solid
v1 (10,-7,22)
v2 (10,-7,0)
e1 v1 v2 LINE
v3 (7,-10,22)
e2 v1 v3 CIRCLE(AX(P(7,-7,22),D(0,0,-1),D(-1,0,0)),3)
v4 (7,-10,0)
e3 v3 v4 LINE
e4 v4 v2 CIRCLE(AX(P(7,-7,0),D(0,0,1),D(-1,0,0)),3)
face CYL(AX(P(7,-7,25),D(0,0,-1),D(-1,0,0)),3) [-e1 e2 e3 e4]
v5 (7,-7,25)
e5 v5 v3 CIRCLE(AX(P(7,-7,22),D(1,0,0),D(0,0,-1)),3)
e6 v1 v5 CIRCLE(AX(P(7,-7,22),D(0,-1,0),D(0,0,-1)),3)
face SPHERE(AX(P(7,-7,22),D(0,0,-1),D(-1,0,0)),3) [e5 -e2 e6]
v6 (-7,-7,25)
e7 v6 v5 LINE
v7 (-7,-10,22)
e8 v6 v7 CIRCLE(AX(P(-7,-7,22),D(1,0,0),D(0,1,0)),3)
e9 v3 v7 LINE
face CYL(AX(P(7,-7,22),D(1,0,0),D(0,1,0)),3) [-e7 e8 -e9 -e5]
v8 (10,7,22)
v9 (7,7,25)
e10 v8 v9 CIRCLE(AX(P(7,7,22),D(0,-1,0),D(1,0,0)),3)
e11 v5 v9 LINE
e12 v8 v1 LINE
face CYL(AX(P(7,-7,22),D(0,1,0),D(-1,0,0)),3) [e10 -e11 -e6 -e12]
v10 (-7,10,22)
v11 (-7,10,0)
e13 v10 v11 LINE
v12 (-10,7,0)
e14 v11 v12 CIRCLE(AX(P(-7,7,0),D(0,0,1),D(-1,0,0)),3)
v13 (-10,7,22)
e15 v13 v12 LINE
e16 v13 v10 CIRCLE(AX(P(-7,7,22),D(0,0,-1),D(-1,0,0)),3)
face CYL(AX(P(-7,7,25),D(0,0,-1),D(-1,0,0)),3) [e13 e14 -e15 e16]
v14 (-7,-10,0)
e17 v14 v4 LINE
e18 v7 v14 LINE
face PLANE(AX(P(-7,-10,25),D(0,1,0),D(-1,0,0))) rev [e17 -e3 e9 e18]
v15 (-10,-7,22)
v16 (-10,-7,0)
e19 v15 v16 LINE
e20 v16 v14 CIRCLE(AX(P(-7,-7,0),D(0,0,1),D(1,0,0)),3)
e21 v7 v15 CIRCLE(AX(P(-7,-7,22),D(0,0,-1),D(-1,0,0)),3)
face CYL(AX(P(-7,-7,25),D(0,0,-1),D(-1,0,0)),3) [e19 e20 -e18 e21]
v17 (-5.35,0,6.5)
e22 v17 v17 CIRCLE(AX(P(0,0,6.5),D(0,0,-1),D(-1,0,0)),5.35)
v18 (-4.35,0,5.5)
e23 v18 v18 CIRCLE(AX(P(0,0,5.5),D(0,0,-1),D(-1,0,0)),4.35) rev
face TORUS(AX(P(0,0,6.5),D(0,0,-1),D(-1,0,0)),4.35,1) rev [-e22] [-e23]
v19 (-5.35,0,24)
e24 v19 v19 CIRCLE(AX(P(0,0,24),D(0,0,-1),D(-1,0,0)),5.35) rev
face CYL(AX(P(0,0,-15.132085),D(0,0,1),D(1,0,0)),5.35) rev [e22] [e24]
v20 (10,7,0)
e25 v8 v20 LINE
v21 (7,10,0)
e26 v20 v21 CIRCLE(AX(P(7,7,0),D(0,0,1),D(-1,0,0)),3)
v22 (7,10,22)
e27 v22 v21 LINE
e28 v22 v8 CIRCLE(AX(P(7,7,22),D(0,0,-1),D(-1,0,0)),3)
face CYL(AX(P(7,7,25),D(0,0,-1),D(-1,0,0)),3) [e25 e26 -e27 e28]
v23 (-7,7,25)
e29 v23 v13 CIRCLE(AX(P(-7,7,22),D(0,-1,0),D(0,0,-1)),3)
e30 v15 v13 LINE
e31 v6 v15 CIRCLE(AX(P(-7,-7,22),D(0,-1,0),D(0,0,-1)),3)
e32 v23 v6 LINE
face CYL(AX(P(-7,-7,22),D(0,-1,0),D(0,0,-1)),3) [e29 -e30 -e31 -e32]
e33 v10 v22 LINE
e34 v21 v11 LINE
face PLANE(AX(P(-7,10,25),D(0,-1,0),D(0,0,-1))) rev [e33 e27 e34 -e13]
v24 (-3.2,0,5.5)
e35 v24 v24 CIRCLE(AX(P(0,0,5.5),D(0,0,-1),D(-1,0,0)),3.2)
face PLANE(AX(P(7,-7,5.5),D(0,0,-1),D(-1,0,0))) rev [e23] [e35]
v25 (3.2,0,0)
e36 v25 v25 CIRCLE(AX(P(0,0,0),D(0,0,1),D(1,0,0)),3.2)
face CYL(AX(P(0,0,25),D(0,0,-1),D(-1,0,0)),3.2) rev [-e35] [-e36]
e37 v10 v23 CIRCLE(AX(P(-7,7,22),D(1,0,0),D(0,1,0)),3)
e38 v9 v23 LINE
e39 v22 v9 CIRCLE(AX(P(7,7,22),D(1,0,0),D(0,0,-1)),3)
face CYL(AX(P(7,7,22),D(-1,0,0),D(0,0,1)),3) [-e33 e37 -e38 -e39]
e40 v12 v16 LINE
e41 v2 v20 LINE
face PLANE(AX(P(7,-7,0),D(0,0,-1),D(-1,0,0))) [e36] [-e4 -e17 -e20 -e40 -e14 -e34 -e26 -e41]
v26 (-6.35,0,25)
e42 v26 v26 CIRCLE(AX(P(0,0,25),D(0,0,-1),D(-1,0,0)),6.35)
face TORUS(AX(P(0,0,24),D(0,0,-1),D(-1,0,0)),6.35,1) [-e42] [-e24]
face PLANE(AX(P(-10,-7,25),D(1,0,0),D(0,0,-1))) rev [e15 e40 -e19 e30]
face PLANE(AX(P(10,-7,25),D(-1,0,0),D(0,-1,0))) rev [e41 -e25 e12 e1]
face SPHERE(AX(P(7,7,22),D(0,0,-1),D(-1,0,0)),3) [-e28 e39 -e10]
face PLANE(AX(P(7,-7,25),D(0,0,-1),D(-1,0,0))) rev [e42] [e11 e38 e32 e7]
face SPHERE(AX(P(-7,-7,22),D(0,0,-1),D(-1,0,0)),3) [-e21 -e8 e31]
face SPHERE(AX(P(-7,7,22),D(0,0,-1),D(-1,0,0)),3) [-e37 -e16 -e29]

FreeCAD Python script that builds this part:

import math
import FreeCAD as App
import Part
import Sketcher

V = App.Vector


def edges_at(feature, points):
    """Names of the edges that pass closest to the given points."""
    edges = feature.Shape.Edges
    near = lambda p: min(range(len(edges)), key=lambda i: edges[i].distToShape(Part.Vertex(*p))[0])
    return sorted({f"Edge{near(p) + 1}" for p in points})

doc = App.newDocument("Part")
body = doc.addObject("PartDesign::Body", "Body")

sketch1 = body.newObject("Sketcher::SketchObject", "Sketch")
sketch1.AttachmentSupport = (doc.getObject("XY_Plane"), [""])
sketch1.MapMode = "FlatFace"
sketch1.addGeometry([
    Part.LineSegment(V(-7, -10, 0), V(7, -10, 0)),
    Part.ArcOfCircle(Part.Circle(V(7, -7, 0), V(0, 0, 1), 3), math.radians(-90), math.radians(0)),
    Part.LineSegment(V(10, -7, 0), V(10, 7, 0)),
    Part.ArcOfCircle(Part.Circle(V(7, 7, 0), V(0, 0, 1), 3), math.radians(0), math.radians(90)),
    Part.LineSegment(V(7, 10, 0), V(-7, 10, 0)),
    Part.ArcOfCircle(Part.Circle(V(-7, 7, 0), V(0, 0, 1), 3), math.radians(90), math.radians(180)),
    Part.LineSegment(V(-10, 7, 0), V(-10, -7, 0)),
    Part.ArcOfCircle(Part.Circle(V(-7, -7, 0), V(0, 0, 1), 3), math.radians(180), math.radians(270)),
    Part.Circle(V(0, 0, 0), V(0, 0, 1), 3.2),
], False)
sketch1.addConstraint([
    Sketcher.Constraint("Tangent", 0, 2, 1, 1),
    Sketcher.Constraint("Tangent", 1, 2, 2, 1),
    Sketcher.Constraint("Tangent", 2, 2, 3, 1),
    Sketcher.Constraint("Tangent", 3, 2, 4, 1),
    Sketcher.Constraint("Tangent", 4, 2, 5, 1),
    Sketcher.Constraint("Tangent", 5, 2, 6, 1),
    Sketcher.Constraint("Tangent", 6, 2, 7, 1),
    Sketcher.Constraint("Tangent", 7, 2, 0, 1),
    Sketcher.Constraint("Horizontal", 0),
    Sketcher.Constraint("Vertical", 2),
    Sketcher.Constraint("Horizontal", 4),
    Sketcher.Constraint("Vertical", 6),
    Sketcher.Constraint("Coincident", 8, 3, -1, 1),
    Sketcher.Constraint("Equal", 1, 3),
    Sketcher.Constraint("Equal", 3, 5),
    Sketcher.Constraint("Equal", 5, 7),
    Sketcher.Constraint("Symmetric", 1, 3, 5, 3, -1, 1),
    Sketcher.Constraint("Equal", 4, 2),
    Sketcher.Constraint("Radius", 1, 3.0),
    Sketcher.Constraint("Diameter", 8, 6.4),
    Sketcher.Constraint("DistanceX", 0, 1, 0, 2, 14.0),
])
pad1 = body.newObject("PartDesign::Pad", "Pad")
pad1.Profile = sketch1
pad1.Length = 25
doc.recompute()

fillet = body.newObject("PartDesign::Fillet", "Fillet")
fillet.Base = (pad1, edges_at(pad1, [
    (9.121, 9.121, 25),
    (0, 10, 25),
    (-9.121, 9.121, 25),
    (-10, 0, 25),
    (-9.121, -9.121, 25),
    (0, -10, 25),
    (9.121, -9.121, 25),
    (10, 0, 25),
]))
fillet.Radius = 3

sketch2 = body.newObject("Sketcher::SketchObject", "Sketch001")
sketch2.AttachmentSupport = (doc.getObject("XY_Plane"), [""])
sketch2.MapMode = "FlatFace"
sketch2.AttachmentOffset = App.Placement(V(0, 0, 25), App.Rotation())
sketch2.addGeometry(Part.Circle(V(0, 0, 0), V(0, 0, 1), 5), False)
sketch2.addConstraint([
    Sketcher.Constraint("Coincident", 0, 3, -1, 1),
    Sketcher.Constraint("Diameter", 0, 10.7),
])
pocket1 = body.newObject("PartDesign::Pocket", "Pocket")
pocket1.Profile = sketch2
pocket1.Length = 19.5
doc.recompute()

fillet2 = body.newObject("PartDesign::Fillet", "Fillet001")
fillet2.Base = (pocket1, edges_at(pocket1, [(-5.35, 0, 25)]))
fillet2.Radius = 1
doc.recompute()

fillet3 = body.newObject("PartDesign::Fillet", "Fillet002")
fillet3.Base = (fillet2, edges_at(fillet2, [(-5.35, 0, 5.5)]))
fillet3.Radius = 1

doc.recompute()
